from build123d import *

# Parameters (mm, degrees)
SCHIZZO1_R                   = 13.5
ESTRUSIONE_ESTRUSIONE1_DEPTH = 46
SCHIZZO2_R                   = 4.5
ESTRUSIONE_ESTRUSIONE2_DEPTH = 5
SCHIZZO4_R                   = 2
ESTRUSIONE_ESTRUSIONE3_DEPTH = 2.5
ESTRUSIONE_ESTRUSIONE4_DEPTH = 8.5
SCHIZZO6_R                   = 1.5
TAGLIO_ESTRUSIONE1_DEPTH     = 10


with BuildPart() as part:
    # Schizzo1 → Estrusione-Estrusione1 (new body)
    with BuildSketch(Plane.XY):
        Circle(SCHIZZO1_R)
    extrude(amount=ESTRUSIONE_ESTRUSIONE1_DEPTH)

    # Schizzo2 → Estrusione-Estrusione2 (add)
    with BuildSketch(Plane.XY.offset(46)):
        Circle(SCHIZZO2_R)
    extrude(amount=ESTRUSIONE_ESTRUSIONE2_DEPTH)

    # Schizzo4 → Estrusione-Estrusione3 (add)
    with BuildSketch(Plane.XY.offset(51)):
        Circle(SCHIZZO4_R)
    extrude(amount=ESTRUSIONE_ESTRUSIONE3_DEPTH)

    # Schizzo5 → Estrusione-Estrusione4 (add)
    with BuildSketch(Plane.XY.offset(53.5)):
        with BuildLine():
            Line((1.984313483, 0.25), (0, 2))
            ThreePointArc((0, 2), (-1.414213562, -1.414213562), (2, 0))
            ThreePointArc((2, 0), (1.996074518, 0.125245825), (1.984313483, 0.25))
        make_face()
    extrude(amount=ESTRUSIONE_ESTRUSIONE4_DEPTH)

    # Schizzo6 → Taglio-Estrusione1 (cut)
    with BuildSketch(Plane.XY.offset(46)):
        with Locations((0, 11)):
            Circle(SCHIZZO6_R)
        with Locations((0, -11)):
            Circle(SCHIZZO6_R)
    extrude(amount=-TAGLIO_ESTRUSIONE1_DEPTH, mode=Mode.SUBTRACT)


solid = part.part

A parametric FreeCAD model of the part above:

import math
import FreeCAD as App
import Part
import Sketcher

V = App.Vector

doc = App.newDocument("Part")
body = doc.addObject("PartDesign::Body", "Body")

# Sketch on XY plane
sketch1 = body.newObject("Sketcher::SketchObject", "Sketch")
sketch1.AttachmentSupport = (doc.getObject("XY_Plane"), [""])
sketch1.MapMode = "FlatFace"
sketch1.addGeometry(Part.Circle(V(0, 0, 0), V(0, 0, 1), 14), False)
sketch1.addConstraint([
    Sketcher.Constraint("Coincident", 0, 3, -1, 1),
    Sketcher.Constraint("Diameter", 0, 27.0),
])
pad1 = body.newObject("PartDesign::Pad", "Pad")
pad1.Profile = sketch1
pad1.Length = 46

# Sketch on XY plane
sketch2 = body.newObject("Sketcher::SketchObject", "Sketch001")
sketch2.AttachmentSupport = (doc.getObject("XY_Plane"), [""])
sketch2.MapMode = "FlatFace"
sketch2.AttachmentOffset = App.Placement(V(0, 0, 46), App.Rotation())
sketch2.addGeometry(Part.Circle(V(0, 0, 0), V(0, 0, 1), 4.5), False)
sketch2.addConstraint([
    Sketcher.Constraint("Coincident", 0, 3, -1, 1),
    Sketcher.Constraint("Diameter", 0, 9.0),
])
pad2 = body.newObject("PartDesign::Pad", "Pad001")
pad2.Profile = sketch2
pad2.Length = 5

# Sketch on XY plane
sketch3 = body.newObject("Sketcher::SketchObject", "Sketch002")
sketch3.AttachmentSupport = (doc.getObject("XY_Plane"), [""])
sketch3.MapMode = "FlatFace"
sketch3.AttachmentOffset = App.Placement(V(0, 0, 51), App.Rotation())
sketch3.addGeometry(Part.Circle(V(0, 0, 0), V(0, 0, 1), 2), False)
sketch3.addConstraint([
    Sketcher.Constraint("Coincident", 0, 3, -1, 1),
    Sketcher.Constraint("Diameter", 0, 4.0),
])
pad3 = body.newObject("PartDesign::Pad", "Pad002")
pad3.Profile = sketch3
pad3.Length = 2.5

# Sketch on XY plane
sketch4 = body.newObject("Sketcher::SketchObject", "Sketch003")
sketch4.AttachmentSupport = (doc.getObject("XY_Plane"), [""])
sketch4.MapMode = "FlatFace"
sketch4.AttachmentOffset = App.Placement(V(0, 0, 53.5), App.Rotation())
sketch4.addGeometry([
    Part.LineSegment(V(1.98, 0.25, 0), V(0, 2, 0)),
    Part.ArcOfCircle(Part.Circle(V(0, 0, 0), V(0, 0, 1), 2), math.radians(90), math.radians(360)),
    Part.ArcOfCircle(Part.Circle(V(0, 0, 0), V(0, 0, 1), 2), math.radians(0), math.radians(7.18)),
], False)
sketch4.addConstraint([
    Sketcher.Constraint("Coincident", 0, 2, 1, 1),
    Sketcher.Constraint("Tangent", 1, 2, 2, 1),
    Sketcher.Constraint("Coincident", 2, 2, 0, 1),
    Sketcher.Constraint("Coincident", 1, 3, -1, 1),
    Sketcher.Constraint("Equal", 1, 2),
    Sketcher.Constraint("PointOnObject", 0, 2, -2),
    Sketcher.Constraint("PointOnObject", 1, 2, -1),
    Sketcher.Constraint("Radius", 1, 2.0),
    Sketcher.Constraint("DistanceY", -1, 1, 2, 2, 0.25),
])
pad4 = body.newObject("PartDesign::Pad", "Pad003")
pad4.Profile = sketch4
pad4.Length = 8.5

# Sketch on XY plane
sketch5 = body.newObject("Sketcher::SketchObject", "Sketch004")
sketch5.AttachmentSupport = (doc.getObject("XY_Plane"), [""])
sketch5.MapMode = "FlatFace"
sketch5.AttachmentOffset = App.Placement(V(0, 0, 46), App.Rotation())
sketch5.addGeometry([
    Part.Circle(V(0, 11, 0), V(0, 0, 1), 1.5),
    Part.Circle(V(0, -11, 0), V(0, 0, 1), 1.5),
], False)
sketch5.addConstraint([
    Sketcher.Constraint("Equal", 0, 1),
    Sketcher.Constraint("Symmetric", 0, 3, 1, 3, -1, 1),
    Sketcher.Constraint("PointOnObject", 0, 3, -2),
    Sketcher.Constraint("Diameter", 0, 3.0),
    Sketcher.Constraint("DistanceY", -1, 1, 0, 3, 11.0),
])
pocket1 = body.newObject("PartDesign::Pocket", "Pocket")
pocket1.Profile = sketch5
pocket1.Length = 10

doc.recompute()
